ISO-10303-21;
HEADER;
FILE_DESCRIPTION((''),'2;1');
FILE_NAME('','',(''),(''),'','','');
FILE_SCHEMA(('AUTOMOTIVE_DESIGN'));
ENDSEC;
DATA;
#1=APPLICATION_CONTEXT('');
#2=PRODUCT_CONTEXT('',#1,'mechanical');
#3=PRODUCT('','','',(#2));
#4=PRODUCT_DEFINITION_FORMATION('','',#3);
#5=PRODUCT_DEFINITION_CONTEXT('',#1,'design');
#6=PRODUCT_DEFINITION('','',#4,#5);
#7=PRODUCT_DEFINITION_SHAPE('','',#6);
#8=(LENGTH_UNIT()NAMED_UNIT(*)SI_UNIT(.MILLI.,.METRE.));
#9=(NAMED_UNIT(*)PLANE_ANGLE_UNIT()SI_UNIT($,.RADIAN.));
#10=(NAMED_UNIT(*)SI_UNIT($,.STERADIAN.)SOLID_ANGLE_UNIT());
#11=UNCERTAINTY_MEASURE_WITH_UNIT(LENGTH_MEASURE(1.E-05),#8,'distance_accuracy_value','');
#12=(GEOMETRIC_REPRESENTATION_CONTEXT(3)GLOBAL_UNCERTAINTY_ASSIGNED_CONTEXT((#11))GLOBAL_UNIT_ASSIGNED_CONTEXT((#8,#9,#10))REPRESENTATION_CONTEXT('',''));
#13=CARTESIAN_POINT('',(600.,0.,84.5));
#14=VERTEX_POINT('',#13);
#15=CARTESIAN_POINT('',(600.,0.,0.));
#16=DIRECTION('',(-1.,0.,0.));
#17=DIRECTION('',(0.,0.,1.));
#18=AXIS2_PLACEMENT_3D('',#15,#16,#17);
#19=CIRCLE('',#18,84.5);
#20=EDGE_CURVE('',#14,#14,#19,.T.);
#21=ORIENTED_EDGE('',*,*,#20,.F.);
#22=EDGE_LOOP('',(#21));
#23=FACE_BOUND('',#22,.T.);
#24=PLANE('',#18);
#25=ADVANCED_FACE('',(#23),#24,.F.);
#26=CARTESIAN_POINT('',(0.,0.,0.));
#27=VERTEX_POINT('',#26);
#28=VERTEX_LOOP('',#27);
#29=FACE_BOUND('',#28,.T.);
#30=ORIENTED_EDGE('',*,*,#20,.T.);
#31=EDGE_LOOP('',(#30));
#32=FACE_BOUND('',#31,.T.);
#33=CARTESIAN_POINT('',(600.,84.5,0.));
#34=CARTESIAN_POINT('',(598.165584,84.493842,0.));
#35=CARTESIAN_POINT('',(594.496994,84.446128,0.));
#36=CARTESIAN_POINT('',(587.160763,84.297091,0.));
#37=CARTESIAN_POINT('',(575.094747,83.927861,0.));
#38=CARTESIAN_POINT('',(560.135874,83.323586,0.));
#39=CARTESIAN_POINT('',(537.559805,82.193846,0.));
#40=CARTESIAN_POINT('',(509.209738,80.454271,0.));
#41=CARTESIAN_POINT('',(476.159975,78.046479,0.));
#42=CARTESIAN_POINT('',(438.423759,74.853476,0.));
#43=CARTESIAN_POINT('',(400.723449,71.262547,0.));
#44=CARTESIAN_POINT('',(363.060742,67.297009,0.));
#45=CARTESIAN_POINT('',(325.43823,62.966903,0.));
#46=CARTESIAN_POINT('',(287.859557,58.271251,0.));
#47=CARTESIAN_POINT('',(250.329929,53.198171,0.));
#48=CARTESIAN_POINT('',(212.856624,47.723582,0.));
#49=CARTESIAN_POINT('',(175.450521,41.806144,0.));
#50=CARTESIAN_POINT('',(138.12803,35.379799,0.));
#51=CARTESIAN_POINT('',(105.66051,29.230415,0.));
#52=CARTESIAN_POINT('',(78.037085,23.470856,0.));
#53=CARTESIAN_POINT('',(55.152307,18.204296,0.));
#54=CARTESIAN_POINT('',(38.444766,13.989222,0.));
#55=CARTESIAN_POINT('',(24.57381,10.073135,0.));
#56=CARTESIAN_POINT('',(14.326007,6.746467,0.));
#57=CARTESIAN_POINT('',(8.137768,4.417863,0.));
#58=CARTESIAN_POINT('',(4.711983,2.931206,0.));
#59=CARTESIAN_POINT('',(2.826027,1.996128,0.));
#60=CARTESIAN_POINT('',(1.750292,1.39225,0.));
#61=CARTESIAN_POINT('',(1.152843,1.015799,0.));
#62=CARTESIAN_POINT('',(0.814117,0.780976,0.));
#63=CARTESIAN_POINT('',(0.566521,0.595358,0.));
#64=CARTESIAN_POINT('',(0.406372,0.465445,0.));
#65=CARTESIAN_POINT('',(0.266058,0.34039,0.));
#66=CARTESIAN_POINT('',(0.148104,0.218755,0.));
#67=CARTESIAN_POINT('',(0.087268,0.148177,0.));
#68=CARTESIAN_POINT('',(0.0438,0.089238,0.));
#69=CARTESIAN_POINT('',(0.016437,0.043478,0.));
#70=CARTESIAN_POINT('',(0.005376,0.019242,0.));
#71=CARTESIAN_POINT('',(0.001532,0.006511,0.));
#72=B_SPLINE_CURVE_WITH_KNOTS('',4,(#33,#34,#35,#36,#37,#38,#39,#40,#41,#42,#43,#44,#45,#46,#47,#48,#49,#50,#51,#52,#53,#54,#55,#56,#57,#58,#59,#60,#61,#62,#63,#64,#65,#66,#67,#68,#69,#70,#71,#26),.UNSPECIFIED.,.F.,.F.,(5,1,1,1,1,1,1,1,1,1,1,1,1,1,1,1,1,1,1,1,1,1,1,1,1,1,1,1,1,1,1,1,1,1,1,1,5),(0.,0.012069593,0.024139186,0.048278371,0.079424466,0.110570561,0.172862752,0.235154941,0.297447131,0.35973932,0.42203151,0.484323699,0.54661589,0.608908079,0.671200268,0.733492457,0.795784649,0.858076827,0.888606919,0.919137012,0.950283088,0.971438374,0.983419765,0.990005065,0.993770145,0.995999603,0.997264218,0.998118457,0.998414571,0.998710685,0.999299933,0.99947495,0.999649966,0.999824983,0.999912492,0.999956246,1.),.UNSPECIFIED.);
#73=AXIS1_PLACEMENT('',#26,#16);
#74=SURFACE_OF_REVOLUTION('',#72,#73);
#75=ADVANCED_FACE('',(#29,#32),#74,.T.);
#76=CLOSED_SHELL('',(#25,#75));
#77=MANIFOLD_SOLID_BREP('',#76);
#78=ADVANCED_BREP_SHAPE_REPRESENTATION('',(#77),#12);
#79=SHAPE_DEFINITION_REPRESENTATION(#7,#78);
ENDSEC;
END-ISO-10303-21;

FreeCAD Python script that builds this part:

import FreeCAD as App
import Part
import Sketcher

doc = App.newDocument("Part")
body = doc.addObject("PartDesign::Body", "Body")

# Sketch on XY plane
sketch1 = doc.addObject("Sketcher::SketchObject", "Sketch")
body.addObject(sketch1)
sketch1.AttachmentSupport = (doc.XY_Plane, [""])
sketch1.MapMode = "FlatFace"
sketch1.addGeometry(Part.LineSegment(App.Vector(0, 0, 0), App.Vector(600, 0, 0)), False)
sketch1.addGeometry(Part.LineSegment(App.Vector(600, 0, 0), App.Vector(600, 84.5, 0)), False)
sketch1.addGeometry(Part.BSplineCurve([App.Vector(0, 0, 0), App.Vector(0.001532, 0.006511, 0), App.Vector(0.005376, 0.019242, 0), App.Vector(0.016437, 0.043478, 0), App.Vector(0.0438, 0.089238, 0), App.Vector(0.087268, 0.148177, 0), App.Vector(0.148104, 0.218755, 0), App.Vector(0.266058, 0.34039, 0), App.Vector(0.406372, 0.465445, 0), App.Vector(0.566521, 0.595358, 0), App.Vector(0.814117, 0.780976, 0), App.Vector(1.152843, 1.015799, 0), App.Vector(1.750292, 1.39225, 0), App.Vector(2.826027, 1.996128, 0), App.Vector(4.711983, 2.931206, 0), App.Vector(8.137768, 4.417863, 0), App.Vector(14.326007, 6.746467, 0), App.Vector(24.57381, 10.073135, 0), App.Vector(38.444766, 13.989222, 0), App.Vector(55.152307, 18.204296, 0), App.Vector(78.037085, 23.470856, 0), App.Vector(105.66051, 29.230415, 0), App.Vector(138.12803, 35.379799, 0), App.Vector(175.450521, 41.806144, 0), App.Vector(212.856624, 47.723582, 0), App.Vector(250.329929, 53.198171, 0), App.Vector(287.859557, 58.271251, 0), App.Vector(325.43823, 62.966903, 0), App.Vector(363.060742, 67.297009, 0), App.Vector(400.723449, 71.262547, 0), App.Vector(438.423759, 74.853476, 0), App.Vector(476.159975, 78.046479, 0), App.Vector(509.209738, 80.454271, 0), App.Vector(537.559805, 82.193846, 0), App.Vector(560.135874, 83.323586, 0), App.Vector(575.094747, 83.927861, 0), App.Vector(587.160763, 84.297091, 0), App.Vector(594.496994, 84.446128, 0), App.Vector(598.165584, 84.493842, 0), App.Vector(600, 84.5, 0)], [5, 1, 1, 1, 1, 1, 1, 1, 1, 1, 1, 1, 1, 1, 1, 1, 1, 1, 1, 1, 1, 1, 1, 1, 1, 1, 1, 1, 1, 1, 1, 1, 1, 1, 1, 1, 5], [0, 0.000043754, 0.000087508, 0.000175017, 0.000350034, 0.00052505, 0.000700067, 0.001289315, 0.001585429, 0.001881543, 0.002735782, 0.004000397, 0.006229855, 0.009994935, 0.016580235, 0.028561626, 0.049716912, 0.080862988, 0.111393081, 0.141923173, 0.204215351, 0.266507543, 0.328799732, 0.391091921, 0.45338411, 0.515676301, 0.57796849, 0.64026068, 0.702552869, 0.764845059, 0.827137248, 0.889429439, 0.920575534, 0.951721629, 0.975860814, 0.987930407, 1], False, 4, [1, 1, 1, 1, 1, 1, 1, 1, 1, 1, 1, 1, 1, 1, 1, 1, 1, 1, 1, 1, 1, 1, 1, 1, 1, 1, 1, 1, 1, 1, 1, 1, 1, 1, 1, 1, 1, 1, 1, 1], False), False)
sketch1.addConstraint(Sketcher.Constraint("Block", 2))
sketch1.addConstraint(Sketcher.Constraint("Coincident", 0, 2, 1, 1))
sketch1.addConstraint(Sketcher.Constraint("Coincident", 1, 2, 2, 2))
sketch1.addConstraint(Sketcher.Constraint("Coincident", 2, 1, 0, 1))
sketch1.addConstraint(Sketcher.Constraint("Horizontal", 0))
sketch1.addConstraint(Sketcher.Constraint("Vertical", 1))
revolution = doc.addObject("PartDesign::Revolution", "Revolution")
body.addObject(revolution)
revolution.Profile = sketch1
revolution.ReferenceAxis = (sketch1, ["H_Axis"])
revolution.Angle = 360

doc.recompute()
